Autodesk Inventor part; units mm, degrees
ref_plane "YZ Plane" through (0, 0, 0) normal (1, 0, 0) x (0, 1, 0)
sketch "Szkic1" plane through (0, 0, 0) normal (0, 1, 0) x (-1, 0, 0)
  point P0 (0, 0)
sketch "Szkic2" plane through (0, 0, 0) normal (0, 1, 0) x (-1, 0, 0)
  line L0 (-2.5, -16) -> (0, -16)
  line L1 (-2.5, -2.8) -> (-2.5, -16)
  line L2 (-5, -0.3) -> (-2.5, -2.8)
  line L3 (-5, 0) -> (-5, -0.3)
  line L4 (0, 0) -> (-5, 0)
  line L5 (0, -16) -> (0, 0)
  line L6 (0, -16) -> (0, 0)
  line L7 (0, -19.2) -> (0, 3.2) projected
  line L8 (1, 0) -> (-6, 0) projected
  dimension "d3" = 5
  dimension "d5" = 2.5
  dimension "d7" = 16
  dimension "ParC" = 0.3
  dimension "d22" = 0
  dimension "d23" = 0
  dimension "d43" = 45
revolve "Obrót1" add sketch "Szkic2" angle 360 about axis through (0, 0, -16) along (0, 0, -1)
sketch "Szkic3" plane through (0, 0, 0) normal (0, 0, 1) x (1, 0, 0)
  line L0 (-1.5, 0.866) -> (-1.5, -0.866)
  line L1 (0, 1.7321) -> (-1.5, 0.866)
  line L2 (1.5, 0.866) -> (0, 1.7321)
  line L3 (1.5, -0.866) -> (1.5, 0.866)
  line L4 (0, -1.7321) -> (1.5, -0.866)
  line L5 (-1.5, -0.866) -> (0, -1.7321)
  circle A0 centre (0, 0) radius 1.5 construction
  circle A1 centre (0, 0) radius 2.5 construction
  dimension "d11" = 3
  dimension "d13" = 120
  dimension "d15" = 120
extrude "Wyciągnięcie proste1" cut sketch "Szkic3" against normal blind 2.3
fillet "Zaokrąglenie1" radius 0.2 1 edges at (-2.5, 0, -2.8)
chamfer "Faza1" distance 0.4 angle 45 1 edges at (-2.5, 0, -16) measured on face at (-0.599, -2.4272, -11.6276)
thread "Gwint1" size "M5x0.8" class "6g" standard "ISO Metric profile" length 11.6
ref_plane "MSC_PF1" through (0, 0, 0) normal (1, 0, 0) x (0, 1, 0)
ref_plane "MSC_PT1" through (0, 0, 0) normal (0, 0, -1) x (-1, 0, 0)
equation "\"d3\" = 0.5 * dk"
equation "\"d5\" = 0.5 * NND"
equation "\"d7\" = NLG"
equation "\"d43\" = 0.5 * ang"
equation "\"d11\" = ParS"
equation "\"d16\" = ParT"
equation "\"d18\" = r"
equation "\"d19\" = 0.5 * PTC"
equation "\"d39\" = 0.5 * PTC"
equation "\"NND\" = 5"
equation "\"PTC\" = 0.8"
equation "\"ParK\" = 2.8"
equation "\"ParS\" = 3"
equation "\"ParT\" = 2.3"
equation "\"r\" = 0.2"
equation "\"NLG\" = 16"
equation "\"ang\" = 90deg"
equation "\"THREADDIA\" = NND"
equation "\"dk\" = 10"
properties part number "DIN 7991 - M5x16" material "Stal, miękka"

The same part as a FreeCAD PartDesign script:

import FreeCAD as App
import Part
import Sketcher
from FreeCAD import Vector
Q = App.Units.Quantity


def edges_at(feature, points):
    """Names of the edges that pass closest to the given points."""
    edges = feature.Shape.Edges
    near = lambda p: min(range(len(edges)), key=lambda i: edges[i].distToShape(Part.Vertex(*p))[0])
    return sorted({f"Edge{near(p) + 1}" for p in points})


def add_polygon(sketch, points):
    """Adds a closed chain of lines whose ends are joined by coincident constraints."""
    first, n = sketch.GeometryCount, len(points)
    for a, b in zip(points, points[1:] + points[:1]):
        sketch.addGeometry(Part.LineSegment(App.Vector(*a, 0), App.Vector(*b, 0)), False)
    for i in range(n):
        sketch.addConstraint(Sketcher.Constraint("Coincident", first + i, 2, first + (i + 1) % n, 1))

doc = App.newDocument("Part")
body = doc.addObject("PartDesign::Body", "Body")

# Sketch on XZ plane
sketch1 = body.newObject("Sketcher::SketchObject", "Sketch")
sketch1.AttachmentSupport = (doc.getObject("XZ_Plane"), [""])
sketch1.MapMode = "FlatFace"
add_polygon(sketch1, [(2.5, -2.8), (2.5, -16), (0, -16), (0, 0), (5, 0), (5, -0.3)])  # lines 0-5
sketch1.addConstraint([
    Sketcher.Constraint("Vertical", 0),
    Sketcher.Constraint("Horizontal", 1),
    Sketcher.Constraint("Vertical", 2),
    Sketcher.Constraint("Horizontal", 3),
    Sketcher.Constraint("Vertical", 4),
    Sketcher.Constraint("Coincident", 2, 2, -1, 1),
    Sketcher.Constraint("DistanceX", 3, 1, 3, 2, Q("5 mm")),
    Sketcher.Constraint("DistanceY", 2, 1, 2, 2, Q("16 mm")),
    Sketcher.Constraint("DistanceX", 1, 2, 1, 1, Q("2.5 mm")),
    Sketcher.Constraint("DistanceY", 4, 2, 4, 1, Q("0.3 mm")),
    Sketcher.Constraint("DistanceY", 5, 2, 4, 2, Q("2.5 mm")),
])
revolution = body.newObject("PartDesign::Revolution", "Revolution")
revolution.Profile = sketch1
revolution.ReferenceAxis = (sketch1, ["V_Axis"])
revolution.Angle = 360

# Sketch on XY plane
sketch2 = body.newObject("Sketcher::SketchObject", "Sketch001")
sketch2.AttachmentSupport = (doc.getObject("XY_Plane"), [""])
sketch2.MapMode = "FlatFace"
add_polygon(sketch2, [(0, 1.7), (-1.5, 0.9), (-1.5, -0.9), (0, -1.7), (1.5, -0.9), (1.5, 0.9)])  # lines 0-5
sketch2.addConstraint([
    Sketcher.Constraint("Vertical", 1),
    Sketcher.Constraint("Vertical", 4),
    Sketcher.Constraint("Symmetric", 0, 2, 3, 2, -1, 1),
    Sketcher.Constraint("Symmetric", 2, 2, 5, 2, -1, 1),
    Sketcher.Constraint("PointOnObject", 2, 2, -2),
    Sketcher.Constraint("Parallel", 2, 5),
    Sketcher.Constraint("Horizontal", 1, 2, 3, 2),
    Sketcher.Constraint("DistanceX", 1, 2, 3, 2, Q("3 mm")),
    Sketcher.Constraint("DistanceY", 1, 2, 1, 1, Q("1.732 mm")),
    Sketcher.Constraint("Distance", 0, Q("1.732 mm")),
])
pocket1 = body.newObject("PartDesign::Pocket", "Pocket")
pocket1.Profile = sketch2
pocket1.Length = 2.3
doc.recompute()

fillet = body.newObject("PartDesign::Fillet", "Fillet")
fillet.Base = (pocket1, edges_at(pocket1, [(-2.5, 0, -2.8)]))
fillet.Radius = 0.2
doc.recompute()

chamfer = body.newObject("PartDesign::Chamfer", "Chamfer")
chamfer.Base = (fillet, edges_at(fillet, [(-2.5, 0, -16)]))
chamfer.Size = 0.4

doc.recompute()
